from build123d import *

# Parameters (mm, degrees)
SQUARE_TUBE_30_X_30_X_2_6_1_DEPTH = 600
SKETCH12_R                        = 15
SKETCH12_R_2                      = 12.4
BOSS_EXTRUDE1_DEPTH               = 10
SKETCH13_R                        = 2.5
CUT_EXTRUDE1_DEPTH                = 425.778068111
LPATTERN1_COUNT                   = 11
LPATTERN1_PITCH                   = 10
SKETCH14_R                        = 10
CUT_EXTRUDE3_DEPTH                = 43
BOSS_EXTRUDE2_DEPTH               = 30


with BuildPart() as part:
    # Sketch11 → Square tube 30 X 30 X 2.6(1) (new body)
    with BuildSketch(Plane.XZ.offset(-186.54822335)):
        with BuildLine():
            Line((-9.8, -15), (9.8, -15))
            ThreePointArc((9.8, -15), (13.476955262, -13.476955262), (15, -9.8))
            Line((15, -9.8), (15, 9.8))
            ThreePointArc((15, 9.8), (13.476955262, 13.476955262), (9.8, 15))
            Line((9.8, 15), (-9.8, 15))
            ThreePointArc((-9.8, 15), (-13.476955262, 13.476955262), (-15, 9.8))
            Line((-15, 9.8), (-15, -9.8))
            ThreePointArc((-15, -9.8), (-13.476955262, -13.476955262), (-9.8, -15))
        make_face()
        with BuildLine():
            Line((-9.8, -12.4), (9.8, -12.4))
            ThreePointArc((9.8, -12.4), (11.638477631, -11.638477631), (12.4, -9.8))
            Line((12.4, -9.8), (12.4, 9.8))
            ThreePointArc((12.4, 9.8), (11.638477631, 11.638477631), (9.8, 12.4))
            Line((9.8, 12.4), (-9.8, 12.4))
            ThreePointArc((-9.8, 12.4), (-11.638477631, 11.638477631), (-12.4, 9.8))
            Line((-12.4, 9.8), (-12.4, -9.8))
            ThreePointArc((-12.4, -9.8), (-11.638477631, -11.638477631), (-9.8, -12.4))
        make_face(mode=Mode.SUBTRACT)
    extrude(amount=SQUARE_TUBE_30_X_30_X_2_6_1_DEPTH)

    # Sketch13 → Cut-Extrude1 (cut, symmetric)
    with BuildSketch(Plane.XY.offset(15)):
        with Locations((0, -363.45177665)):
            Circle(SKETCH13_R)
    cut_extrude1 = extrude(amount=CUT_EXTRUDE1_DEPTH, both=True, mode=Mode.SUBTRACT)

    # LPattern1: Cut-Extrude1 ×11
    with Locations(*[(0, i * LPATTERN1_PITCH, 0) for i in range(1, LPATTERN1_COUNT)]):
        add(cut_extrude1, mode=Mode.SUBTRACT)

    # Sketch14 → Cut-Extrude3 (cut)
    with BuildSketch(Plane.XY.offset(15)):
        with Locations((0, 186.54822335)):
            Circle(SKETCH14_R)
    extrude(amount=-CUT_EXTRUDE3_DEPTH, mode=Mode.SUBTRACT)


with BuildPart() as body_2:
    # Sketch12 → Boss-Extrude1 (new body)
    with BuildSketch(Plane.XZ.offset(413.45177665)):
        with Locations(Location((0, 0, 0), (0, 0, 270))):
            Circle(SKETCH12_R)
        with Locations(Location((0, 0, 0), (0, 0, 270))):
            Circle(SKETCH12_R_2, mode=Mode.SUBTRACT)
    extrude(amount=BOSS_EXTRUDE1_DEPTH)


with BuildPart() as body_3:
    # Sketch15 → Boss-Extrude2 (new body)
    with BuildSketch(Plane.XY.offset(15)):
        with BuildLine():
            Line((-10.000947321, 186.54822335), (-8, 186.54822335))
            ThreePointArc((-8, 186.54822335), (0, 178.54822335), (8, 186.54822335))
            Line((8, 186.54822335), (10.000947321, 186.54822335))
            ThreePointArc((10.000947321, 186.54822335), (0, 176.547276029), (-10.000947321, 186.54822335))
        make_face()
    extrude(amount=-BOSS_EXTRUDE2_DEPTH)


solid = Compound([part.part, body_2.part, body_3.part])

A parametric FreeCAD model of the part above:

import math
import FreeCAD as App
import Part
import Sketcher
from FreeCAD import Vector

doc = App.newDocument("Part")
body = doc.addObject("PartDesign::Body", "Body")

sketch1 = doc.addObject("Sketcher::SketchObject", "Sketch")
body.addObject(sketch1)
sketch1.AttachmentSupport = (doc.XZ_Plane, [""])
sketch1.MapMode = "FlatFace"
sketch1.AttachmentOffset = App.Placement(Vector(0, 0, -186.548223), App.Rotation())
sketch1.addGeometry([
    Part.LineSegment(Vector(-9.8, -15, 0), Vector(9.8, -15, 0)),
    Part.ArcOfCircle(Part.Circle(Vector(9.8, -9.8, 0), Vector(0, 0, 1), 5.2), math.radians(-90), math.radians(0)),
    Part.LineSegment(Vector(15, -9.8, 0), Vector(15, 9.8, 0)),
    Part.ArcOfCircle(Part.Circle(Vector(9.8, 9.8, 0), Vector(0, 0, 1), 5.2), math.radians(0), math.radians(90)),
    Part.LineSegment(Vector(9.8, 15, 0), Vector(-9.8, 15, 0)),
    Part.ArcOfCircle(Part.Circle(Vector(-9.8, 9.8, 0), Vector(0, 0, 1), 5.2), math.radians(90), math.radians(180)),
    Part.LineSegment(Vector(-15, 9.8, 0), Vector(-15, -9.8, 0)),
    Part.ArcOfCircle(Part.Circle(Vector(-9.8, -9.8, 0), Vector(0, 0, 1), 5.2), math.radians(-180), math.radians(-90)),
    Part.LineSegment(Vector(9.8, -12.4, 0), Vector(-9.8, -12.4, 0)),
    Part.ArcOfCircle(Part.Circle(Vector(-9.8, -9.8, 0), Vector(0, 0, 1), 2.6), math.radians(180), math.radians(270)),
    Part.LineSegment(Vector(-12.4, -9.8, 0), Vector(-12.4, 9.8, 0)),
    Part.ArcOfCircle(Part.Circle(Vector(-9.8, 9.8, 0), Vector(0, 0, 1), 2.6), math.radians(90), math.radians(180)),
    Part.LineSegment(Vector(-9.8, 12.4, 0), Vector(9.8, 12.4, 0)),
    Part.ArcOfCircle(Part.Circle(Vector(9.8, 9.8, 0), Vector(0, 0, 1), 2.6), math.radians(0), math.radians(90)),
    Part.LineSegment(Vector(12.4, 9.8, 0), Vector(12.4, -9.8, 0)),
    Part.ArcOfCircle(Part.Circle(Vector(9.8, -9.8, 0), Vector(0, 0, 1), 2.6), math.radians(-90), math.radians(0)),
], False)
sketch1.addConstraint([
    Sketcher.Constraint("Tangent", 0, 2, 1, 1),
    Sketcher.Constraint("Tangent", 1, 2, 2, 1),
    Sketcher.Constraint("Tangent", 2, 2, 3, 1),
    Sketcher.Constraint("Tangent", 3, 2, 4, 1),
    Sketcher.Constraint("Tangent", 4, 2, 5, 1),
    Sketcher.Constraint("Tangent", 5, 2, 6, 1),
    Sketcher.Constraint("Tangent", 6, 2, 7, 1),
    Sketcher.Constraint("Tangent", 7, 2, 0, 1),
    Sketcher.Constraint("Tangent", 8, 2, 9, 2),
    Sketcher.Constraint("Tangent", 9, 1, 10, 1),
    Sketcher.Constraint("Tangent", 10, 2, 11, 2),
    Sketcher.Constraint("Tangent", 11, 1, 12, 1),
    Sketcher.Constraint("Tangent", 12, 2, 13, 2),
    Sketcher.Constraint("Tangent", 13, 1, 14, 1),
    Sketcher.Constraint("Tangent", 14, 2, 15, 2),
    Sketcher.Constraint("Tangent", 15, 1, 8, 1),
    Sketcher.Constraint("Horizontal", 0),
    Sketcher.Constraint("Vertical", 2),
    Sketcher.Constraint("Horizontal", 4),
    Sketcher.Constraint("Vertical", 6),
    Sketcher.Constraint("Horizontal", 8),
    Sketcher.Constraint("Vertical", 10),
    Sketcher.Constraint("Horizontal", 12),
    Sketcher.Constraint("Vertical", 14),
    Sketcher.Constraint("Coincident", 9, 3, 7, 3),
    Sketcher.Constraint("Coincident", 11, 3, 5, 3),
    Sketcher.Constraint("Coincident", 13, 3, 3, 3),
    Sketcher.Constraint("Equal", 1, 3),
    Sketcher.Constraint("Equal", 3, 5),
    Sketcher.Constraint("Equal", 5, 7),
    Sketcher.Constraint("Equal", 13, 15),
    Sketcher.Constraint("Symmetric", 1, 3, 5, 3, -1, 1),
    Sketcher.Constraint("Equal", 12, 2),
    Sketcher.Constraint("Radius", 1, 5.2),
    Sketcher.Constraint("Radius", 9, 2.6),
    Sketcher.Constraint("DistanceX", 0, 1, 0, 2, 19.6),
])
pad1 = doc.addObject("PartDesign::Pad", "Pad")
body.addObject(pad1)
pad1.Profile = sketch1
pad1.Length = 600

sketch2 = doc.addObject("Sketcher::SketchObject", "Sketch001")
body.addObject(sketch2)
sketch2.AttachmentSupport = (doc.XY_Plane, [""])
sketch2.MapMode = "FlatFace"
sketch2.AttachmentOffset = App.Placement(Vector(0, 0, 15), App.Rotation())
sketch2.addGeometry(Part.Circle(Vector(0, -363.5, 0), Vector(0, 0, 1), 2.5), False)
sketch2.addConstraint([
    Sketcher.Constraint("PointOnObject", 0, 3, -2),
    Sketcher.Constraint("Diameter", 0, 5.0),
    Sketcher.Constraint("DistanceY", 0, 3, -1, 1, 363.451777),
])
pocket1 = doc.addObject("PartDesign::Pocket", "Pocket")
body.addObject(pocket1)
pocket1.Profile = sketch2
pocket1.Length = 851.556136
pocket1.Midplane = True
doc.recompute()

linearpattern = doc.addObject("PartDesign::LinearPattern", "LinearPattern")
body.addObject(linearpattern)
linearpattern.Originals = [pocket1]
linearpattern.Direction = (doc.Y_Axis, [""])
linearpattern.Mode = "offset"
linearpattern.Offset = 10
linearpattern.Occurrences = 11
body.Tip = linearpattern

sketch3 = doc.addObject("Sketcher::SketchObject", "Sketch002")
body.addObject(sketch3)
sketch3.AttachmentSupport = (doc.XY_Plane, [""])
sketch3.MapMode = "FlatFace"
sketch3.AttachmentOffset = App.Placement(Vector(0, 0, 15), App.Rotation())
sketch3.addGeometry(Part.Circle(Vector(0, 187, 0), Vector(0, 0, 1), 10), False)
sketch3.addConstraint([
    Sketcher.Constraint("PointOnObject", 0, 3, -2),
    Sketcher.Constraint("Diameter", 0, 20.0),
    Sketcher.Constraint("DistanceY", -1, 1, 0, 3, 186.548223),
])
pocket2 = doc.addObject("PartDesign::Pocket", "Pocket001")
body.addObject(pocket2)
pocket2.Profile = sketch3
pocket2.Length = 43
body2 = doc.addObject("PartDesign::Body", "Body001")

sketch4 = doc.addObject("Sketcher::SketchObject", "Sketch003")
body2.addObject(sketch4)
sketch4.AttachmentSupport = (doc.getObject("XZ_Plane001"), [""])
sketch4.MapMode = "FlatFace"
sketch4.AttachmentOffset = App.Placement(Vector(0, 0, 413.451777), App.Rotation())
sketch4.addGeometry([
    Part.Circle(Vector(0, 0, 0), Vector(0, 0, 1), 15),
    Part.Circle(Vector(0, 0, 0), Vector(0, 0, 1), 12),
], False)
sketch4.addConstraint([
    Sketcher.Constraint("Coincident", 0, 3, -1, 1),
    Sketcher.Constraint("Coincident", 1, 3, -1, 1),
    Sketcher.Constraint("Diameter", 0, 30.0),
    Sketcher.Constraint("Diameter", 1, 24.8),
])
pad2 = doc.addObject("PartDesign::Pad", "Pad001")
body2.addObject(pad2)
pad2.Profile = sketch4
pad2.Length = 10
body3 = doc.addObject("PartDesign::Body", "Body002")

sketch5 = doc.addObject("Sketcher::SketchObject", "Sketch004")
body3.addObject(sketch5)
sketch5.AttachmentSupport = (doc.getObject("XY_Plane002"), [""])
sketch5.MapMode = "FlatFace"
sketch5.AttachmentOffset = App.Placement(Vector(0, 0, 15), App.Rotation())
sketch5.addGeometry([
    Part.LineSegment(Vector(-8, 186.5, 0), Vector(-10, 186.5, 0)),
    Part.ArcOfCircle(Part.Circle(Vector(0, 186.5, 0), Vector(0, 0, 1), 10), math.radians(180), math.radians(360)),
    Part.LineSegment(Vector(10, 186.5, 0), Vector(8, 186.5, 0)),
    Part.ArcOfCircle(Part.Circle(Vector(0, 186.5, 0), Vector(0, 0, 1), 8), math.radians(180), math.radians(360)),
], False)
sketch5.addConstraint([
    Sketcher.Constraint("Coincident", 0, 2, 1, 1),
    Sketcher.Constraint("Coincident", 1, 2, 2, 1),
    Sketcher.Constraint("Coincident", 2, 2, 3, 2),
    Sketcher.Constraint("Coincident", 3, 1, 0, 1),
    Sketcher.Constraint("Horizontal", 0),
    Sketcher.Constraint("Horizontal", 2),
    Sketcher.Constraint("Coincident", 3, 3, 1, 3),
    Sketcher.Constraint("Symmetric", 0, 2, 1, 2, -2),
    Sketcher.Constraint("Horizontal", 3, 3, 0, 2),
    Sketcher.Constraint("Radius", 3, 8.0),
    Sketcher.Constraint("Radius", 1, 10.000947),
    Sketcher.Constraint("DistanceY", -1, 1, 1, 3, 186.548223),
])
pad3 = doc.addObject("PartDesign::Pad", "Pad002")
body3.addObject(pad3)
pad3.Profile = sketch5
pad3.Length = 30
pad3.Reversed = True

doc.recompute()
